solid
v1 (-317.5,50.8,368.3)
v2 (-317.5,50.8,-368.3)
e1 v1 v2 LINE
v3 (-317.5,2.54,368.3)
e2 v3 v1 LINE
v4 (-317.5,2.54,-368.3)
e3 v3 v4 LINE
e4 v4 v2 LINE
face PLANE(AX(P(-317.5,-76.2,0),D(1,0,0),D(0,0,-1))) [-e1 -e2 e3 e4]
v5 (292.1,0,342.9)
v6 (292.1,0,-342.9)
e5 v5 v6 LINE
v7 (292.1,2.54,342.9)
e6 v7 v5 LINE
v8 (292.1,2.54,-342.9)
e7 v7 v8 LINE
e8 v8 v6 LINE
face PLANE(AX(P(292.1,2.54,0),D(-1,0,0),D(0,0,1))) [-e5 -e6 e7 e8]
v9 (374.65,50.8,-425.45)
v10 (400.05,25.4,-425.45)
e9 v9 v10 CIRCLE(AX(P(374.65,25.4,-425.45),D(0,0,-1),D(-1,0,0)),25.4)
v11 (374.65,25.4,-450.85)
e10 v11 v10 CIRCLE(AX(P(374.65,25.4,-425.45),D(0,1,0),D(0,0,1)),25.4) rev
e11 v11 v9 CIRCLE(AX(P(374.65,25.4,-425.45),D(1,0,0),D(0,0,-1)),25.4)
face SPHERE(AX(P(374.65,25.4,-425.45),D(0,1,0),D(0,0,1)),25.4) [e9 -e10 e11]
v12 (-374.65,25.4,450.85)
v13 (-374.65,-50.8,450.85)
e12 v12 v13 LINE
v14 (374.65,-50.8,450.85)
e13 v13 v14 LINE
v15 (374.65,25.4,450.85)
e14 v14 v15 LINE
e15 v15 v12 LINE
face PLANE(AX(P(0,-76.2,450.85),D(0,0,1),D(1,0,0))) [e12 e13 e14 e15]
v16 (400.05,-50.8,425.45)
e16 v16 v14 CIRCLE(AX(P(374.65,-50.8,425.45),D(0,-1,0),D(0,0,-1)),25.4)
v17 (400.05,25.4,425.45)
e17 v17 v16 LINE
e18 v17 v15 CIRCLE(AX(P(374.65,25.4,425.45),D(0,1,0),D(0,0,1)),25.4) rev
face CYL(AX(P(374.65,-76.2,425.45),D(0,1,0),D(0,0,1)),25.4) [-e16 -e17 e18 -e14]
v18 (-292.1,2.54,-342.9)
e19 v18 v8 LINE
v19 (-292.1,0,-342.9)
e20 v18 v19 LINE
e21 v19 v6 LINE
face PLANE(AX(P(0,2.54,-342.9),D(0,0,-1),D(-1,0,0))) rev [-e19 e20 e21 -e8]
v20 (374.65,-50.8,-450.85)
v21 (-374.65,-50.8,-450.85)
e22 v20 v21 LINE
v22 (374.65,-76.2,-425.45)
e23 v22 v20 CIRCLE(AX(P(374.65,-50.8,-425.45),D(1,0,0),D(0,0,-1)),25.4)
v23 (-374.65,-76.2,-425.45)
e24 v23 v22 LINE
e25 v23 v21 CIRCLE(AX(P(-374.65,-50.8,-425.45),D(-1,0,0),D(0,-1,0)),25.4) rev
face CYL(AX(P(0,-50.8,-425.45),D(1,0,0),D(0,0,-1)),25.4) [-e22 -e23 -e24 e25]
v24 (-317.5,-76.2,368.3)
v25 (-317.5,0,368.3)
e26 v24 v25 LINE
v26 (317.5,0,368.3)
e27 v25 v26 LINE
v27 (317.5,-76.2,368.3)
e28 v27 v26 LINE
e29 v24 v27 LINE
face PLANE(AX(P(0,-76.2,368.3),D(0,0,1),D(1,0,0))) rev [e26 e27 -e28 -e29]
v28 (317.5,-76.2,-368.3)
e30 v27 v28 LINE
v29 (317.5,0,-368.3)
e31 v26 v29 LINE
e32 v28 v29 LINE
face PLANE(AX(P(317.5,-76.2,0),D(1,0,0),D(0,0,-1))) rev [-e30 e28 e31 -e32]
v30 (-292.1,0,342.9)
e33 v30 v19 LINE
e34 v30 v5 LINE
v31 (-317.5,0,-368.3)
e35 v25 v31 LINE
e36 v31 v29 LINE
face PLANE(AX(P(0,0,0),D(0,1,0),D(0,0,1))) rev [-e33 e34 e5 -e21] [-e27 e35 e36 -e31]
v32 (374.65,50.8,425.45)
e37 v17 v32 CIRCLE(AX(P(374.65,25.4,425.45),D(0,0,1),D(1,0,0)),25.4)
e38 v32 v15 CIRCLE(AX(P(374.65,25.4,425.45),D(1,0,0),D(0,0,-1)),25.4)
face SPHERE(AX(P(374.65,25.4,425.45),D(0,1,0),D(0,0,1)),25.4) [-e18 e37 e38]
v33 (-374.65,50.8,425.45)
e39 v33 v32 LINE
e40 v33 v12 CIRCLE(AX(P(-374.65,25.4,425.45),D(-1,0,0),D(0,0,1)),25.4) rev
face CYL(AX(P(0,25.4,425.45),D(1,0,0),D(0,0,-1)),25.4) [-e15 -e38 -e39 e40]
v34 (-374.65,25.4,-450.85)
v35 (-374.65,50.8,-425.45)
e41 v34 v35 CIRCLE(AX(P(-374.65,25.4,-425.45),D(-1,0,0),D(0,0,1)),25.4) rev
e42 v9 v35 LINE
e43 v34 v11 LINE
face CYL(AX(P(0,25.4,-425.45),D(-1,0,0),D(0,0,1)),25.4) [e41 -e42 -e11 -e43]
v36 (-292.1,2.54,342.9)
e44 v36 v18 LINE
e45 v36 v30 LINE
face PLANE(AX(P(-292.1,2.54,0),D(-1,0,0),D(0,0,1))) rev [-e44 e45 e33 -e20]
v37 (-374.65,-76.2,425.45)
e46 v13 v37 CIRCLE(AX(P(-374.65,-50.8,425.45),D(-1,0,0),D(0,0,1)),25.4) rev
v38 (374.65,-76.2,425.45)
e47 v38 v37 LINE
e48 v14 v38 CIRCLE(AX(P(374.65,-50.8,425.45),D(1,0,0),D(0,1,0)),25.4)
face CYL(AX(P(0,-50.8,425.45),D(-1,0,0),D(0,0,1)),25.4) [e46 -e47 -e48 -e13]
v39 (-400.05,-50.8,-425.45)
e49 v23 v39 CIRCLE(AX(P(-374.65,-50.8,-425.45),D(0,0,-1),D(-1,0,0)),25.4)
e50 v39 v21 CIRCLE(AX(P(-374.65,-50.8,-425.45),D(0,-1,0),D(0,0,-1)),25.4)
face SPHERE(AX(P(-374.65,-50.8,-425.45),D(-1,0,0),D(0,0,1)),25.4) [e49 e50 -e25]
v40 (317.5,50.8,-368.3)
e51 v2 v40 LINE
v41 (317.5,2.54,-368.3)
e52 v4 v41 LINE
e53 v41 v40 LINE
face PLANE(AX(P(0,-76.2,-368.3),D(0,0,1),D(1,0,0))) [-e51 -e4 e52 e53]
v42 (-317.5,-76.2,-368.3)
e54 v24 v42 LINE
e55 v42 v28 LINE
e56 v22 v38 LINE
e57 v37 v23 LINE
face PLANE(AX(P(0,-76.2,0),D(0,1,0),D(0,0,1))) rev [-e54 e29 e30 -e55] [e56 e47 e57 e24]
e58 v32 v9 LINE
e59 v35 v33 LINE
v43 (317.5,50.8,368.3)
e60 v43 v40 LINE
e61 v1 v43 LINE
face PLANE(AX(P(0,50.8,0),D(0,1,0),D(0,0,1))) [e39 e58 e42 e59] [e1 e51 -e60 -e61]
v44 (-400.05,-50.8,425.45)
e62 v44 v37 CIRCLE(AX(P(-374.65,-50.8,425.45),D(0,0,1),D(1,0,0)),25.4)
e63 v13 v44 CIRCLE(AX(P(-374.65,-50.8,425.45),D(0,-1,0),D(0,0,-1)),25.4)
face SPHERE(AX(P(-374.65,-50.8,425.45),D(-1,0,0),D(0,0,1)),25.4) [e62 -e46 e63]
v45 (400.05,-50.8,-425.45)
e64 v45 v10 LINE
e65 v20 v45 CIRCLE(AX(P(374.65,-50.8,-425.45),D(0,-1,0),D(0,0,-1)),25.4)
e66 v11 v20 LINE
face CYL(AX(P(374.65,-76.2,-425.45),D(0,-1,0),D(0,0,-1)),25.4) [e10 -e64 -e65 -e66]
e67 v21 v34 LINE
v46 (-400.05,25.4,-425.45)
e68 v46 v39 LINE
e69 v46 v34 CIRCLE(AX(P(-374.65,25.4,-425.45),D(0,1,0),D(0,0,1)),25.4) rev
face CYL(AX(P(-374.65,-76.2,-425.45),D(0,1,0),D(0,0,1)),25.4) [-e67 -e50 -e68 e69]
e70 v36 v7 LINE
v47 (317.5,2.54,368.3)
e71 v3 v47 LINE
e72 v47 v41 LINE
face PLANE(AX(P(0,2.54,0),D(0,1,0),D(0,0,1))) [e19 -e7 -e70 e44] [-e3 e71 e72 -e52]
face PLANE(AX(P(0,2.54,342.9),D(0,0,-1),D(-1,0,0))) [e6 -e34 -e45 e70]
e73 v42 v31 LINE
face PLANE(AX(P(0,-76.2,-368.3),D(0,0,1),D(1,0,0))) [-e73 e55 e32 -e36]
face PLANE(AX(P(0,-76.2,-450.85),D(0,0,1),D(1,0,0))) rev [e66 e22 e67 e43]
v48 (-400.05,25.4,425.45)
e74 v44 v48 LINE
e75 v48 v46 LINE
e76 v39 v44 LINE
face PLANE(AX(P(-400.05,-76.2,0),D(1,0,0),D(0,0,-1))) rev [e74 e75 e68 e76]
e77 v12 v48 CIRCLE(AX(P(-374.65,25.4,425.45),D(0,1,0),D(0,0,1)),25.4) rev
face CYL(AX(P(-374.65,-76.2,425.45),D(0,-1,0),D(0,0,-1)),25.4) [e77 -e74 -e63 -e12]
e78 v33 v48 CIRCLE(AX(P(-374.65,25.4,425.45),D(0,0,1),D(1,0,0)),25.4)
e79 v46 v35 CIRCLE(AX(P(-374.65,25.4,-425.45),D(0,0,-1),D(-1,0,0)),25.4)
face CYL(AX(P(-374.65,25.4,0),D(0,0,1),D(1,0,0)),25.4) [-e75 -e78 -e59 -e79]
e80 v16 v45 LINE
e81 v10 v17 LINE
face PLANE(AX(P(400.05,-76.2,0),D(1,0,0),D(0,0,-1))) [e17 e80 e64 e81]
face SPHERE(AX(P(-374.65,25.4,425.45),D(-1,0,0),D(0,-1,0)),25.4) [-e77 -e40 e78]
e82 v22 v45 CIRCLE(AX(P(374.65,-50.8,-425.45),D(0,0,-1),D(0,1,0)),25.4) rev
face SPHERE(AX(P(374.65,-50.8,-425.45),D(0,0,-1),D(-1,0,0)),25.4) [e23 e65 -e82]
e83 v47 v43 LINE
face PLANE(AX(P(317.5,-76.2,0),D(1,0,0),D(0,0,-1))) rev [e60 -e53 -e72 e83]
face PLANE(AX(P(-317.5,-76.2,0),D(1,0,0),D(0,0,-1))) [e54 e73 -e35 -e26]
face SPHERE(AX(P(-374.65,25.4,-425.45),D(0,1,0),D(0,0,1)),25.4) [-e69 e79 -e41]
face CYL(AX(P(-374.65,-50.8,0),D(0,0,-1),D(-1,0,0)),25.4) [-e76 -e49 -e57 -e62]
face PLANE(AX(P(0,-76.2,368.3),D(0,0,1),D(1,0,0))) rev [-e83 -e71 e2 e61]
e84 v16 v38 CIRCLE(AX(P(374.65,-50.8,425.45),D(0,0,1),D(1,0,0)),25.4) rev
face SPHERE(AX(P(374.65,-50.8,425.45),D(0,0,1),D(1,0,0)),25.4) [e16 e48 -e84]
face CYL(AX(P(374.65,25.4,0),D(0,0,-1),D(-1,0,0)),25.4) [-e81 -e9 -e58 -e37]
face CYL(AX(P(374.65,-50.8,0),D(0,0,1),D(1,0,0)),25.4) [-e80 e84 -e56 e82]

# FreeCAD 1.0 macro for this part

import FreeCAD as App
import Part
import Sketcher
Q = App.Units.Quantity


def edges_at(feature, points):
    """Names of the edges that pass closest to the given points."""
    edges = feature.Shape.Edges
    near = lambda p: min(range(len(edges)), key=lambda i: edges[i].distToShape(Part.Vertex(*p))[0])
    return sorted({f"Edge{near(p) + 1}" for p in points})

doc = App.newDocument("Part")
body = doc.addObject("PartDesign::Body", "Body")

sketch1 = body.newObject("Sketcher::SketchObject", "Sketch")
sketch1.AttachmentSupport = (doc.getObject("XZ_Plane"), [""])
sketch1.MapMode = "FlatFace"
sketch1.addGeometry(Part.LineSegment(App.Vector(-400.05, -450.85, 0), App.Vector(-400.05, 450.85, 0)), False)
sketch1.addGeometry(Part.LineSegment(App.Vector(-400.05, 450.85, 0), App.Vector(400.05, 450.85, 0)), False)
sketch1.addGeometry(Part.LineSegment(App.Vector(400.05, 450.85, 0), App.Vector(400.05, -450.85, 0)), False)
sketch1.addGeometry(Part.LineSegment(App.Vector(400.05, -450.85, 0), App.Vector(-400.05, -450.85, 0)), False)
sketch1.addGeometry(Part.LineSegment(App.Vector(317.5, 368.3, 0), App.Vector(-317.5, 368.3, 0)), False)
sketch1.addGeometry(Part.LineSegment(App.Vector(-317.5, 368.3, 0), App.Vector(-317.5, -368.3, 0)), False)
sketch1.addGeometry(Part.LineSegment(App.Vector(-317.5, -368.3, 0), App.Vector(317.5, -368.3, 0)), False)
sketch1.addGeometry(Part.LineSegment(App.Vector(317.5, -368.3, 0), App.Vector(317.5, 368.3, 0)), False)
sketch1.addConstraint(Sketcher.Constraint("Coincident", 0, 2, 1, 1))
sketch1.addConstraint(Sketcher.Constraint("Coincident", 1, 2, 2, 1))
sketch1.addConstraint(Sketcher.Constraint("Coincident", 2, 2, 3, 1))
sketch1.addConstraint(Sketcher.Constraint("Coincident", 3, 2, 0, 1))
sketch1.addConstraint(Sketcher.Constraint("Coincident", 4, 2, 5, 1))
sketch1.addConstraint(Sketcher.Constraint("Coincident", 5, 2, 6, 1))
sketch1.addConstraint(Sketcher.Constraint("Coincident", 6, 2, 7, 1))
sketch1.addConstraint(Sketcher.Constraint("Coincident", 7, 2, 4, 1))
sketch1.addConstraint(Sketcher.Constraint("Vertical", 0))
sketch1.addConstraint(Sketcher.Constraint("Horizontal", 1))
sketch1.addConstraint(Sketcher.Constraint("Vertical", 2))
sketch1.addConstraint(Sketcher.Constraint("Horizontal", 3))
sketch1.addConstraint(Sketcher.Constraint("Horizontal", 4))
sketch1.addConstraint(Sketcher.Constraint("Vertical", 5))
sketch1.addConstraint(Sketcher.Constraint("Horizontal", 6))
sketch1.addConstraint(Sketcher.Constraint("Vertical", 7))
sketch1.addConstraint(Sketcher.Constraint("Symmetric", 0, 2, 2, 2, -1, 1))
sketch1.addConstraint(Sketcher.Constraint("Symmetric", 4, 2, 6, 2, -1, 1))
sketch1.addConstraint(Sketcher.Constraint("DistanceX", 4, 2, 4, 1, Q("25 in")))
sketch1.addConstraint(Sketcher.Constraint("DistanceY", 5, 2, 5, 1, Q("29 in")))
sketch1.addConstraint(Sketcher.Constraint("DistanceX", 1, 1, 1, 2, Q("31.5 in")))
sketch1.addConstraint(Sketcher.Constraint("DistanceY", 0, 1, 0, 2, Q("35.5 in")))
pad1 = body.newObject("PartDesign::Pad", "Pad")
pad1.Profile = sketch1
pad1.Type = "TwoLengths"
pad1.Length = Q("2 in")
pad1.Length2 = Q("3 in")
pad1.Reversed = True

sketch2 = body.newObject("Sketcher::SketchObject", "Sketch001")
sketch2.AttachmentSupport = (doc.getObject("XZ_Plane"), [""])
sketch2.MapMode = "FlatFace"
sketch2.addGeometry(Part.LineSegment(App.Vector(-317.5, -368.3, 0), App.Vector(-317.5, 368.3, 0)), False)
sketch2.addGeometry(Part.LineSegment(App.Vector(-317.5, 368.3, 0), App.Vector(317.5, 368.3, 0)), False)
sketch2.addGeometry(Part.LineSegment(App.Vector(317.5, 368.3, 0), App.Vector(317.5, -368.3, 0)), False)
sketch2.addGeometry(Part.LineSegment(App.Vector(317.5, -368.3, 0), App.Vector(-317.5, -368.3, 0)), False)
sketch2.addGeometry(Part.LineSegment(App.Vector(292.1, 342.9, 0), App.Vector(-292.1, 342.9, 0)), False)
sketch2.addGeometry(Part.LineSegment(App.Vector(-292.1, 342.9, 0), App.Vector(-292.1, -342.9, 0)), False)
sketch2.addGeometry(Part.LineSegment(App.Vector(-292.1, -342.9, 0), App.Vector(292.1, -342.9, 0)), False)
sketch2.addGeometry(Part.LineSegment(App.Vector(292.1, -342.9, 0), App.Vector(292.1, 342.9, 0)), False)
sketch2.addConstraint(Sketcher.Constraint("Coincident", 0, 2, 1, 1))
sketch2.addConstraint(Sketcher.Constraint("Coincident", 1, 2, 2, 1))
sketch2.addConstraint(Sketcher.Constraint("Coincident", 2, 2, 3, 1))
sketch2.addConstraint(Sketcher.Constraint("Coincident", 3, 2, 0, 1))
sketch2.addConstraint(Sketcher.Constraint("Coincident", 4, 2, 5, 1))
sketch2.addConstraint(Sketcher.Constraint("Coincident", 5, 2, 6, 1))
sketch2.addConstraint(Sketcher.Constraint("Coincident", 6, 2, 7, 1))
sketch2.addConstraint(Sketcher.Constraint("Coincident", 7, 2, 4, 1))
sketch2.addConstraint(Sketcher.Constraint("Vertical", 0))
sketch2.addConstraint(Sketcher.Constraint("Horizontal", 1))
sketch2.addConstraint(Sketcher.Constraint("Vertical", 2))
sketch2.addConstraint(Sketcher.Constraint("Horizontal", 3))
sketch2.addConstraint(Sketcher.Constraint("Horizontal", 4))
sketch2.addConstraint(Sketcher.Constraint("Vertical", 5))
sketch2.addConstraint(Sketcher.Constraint("Horizontal", 6))
sketch2.addConstraint(Sketcher.Constraint("Vertical", 7))
sketch2.addConstraint(Sketcher.Constraint("Symmetric", 0, 2, 2, 2, -1, 1))
sketch2.addConstraint(Sketcher.Constraint("Symmetric", 4, 2, 6, 2, -1, 1))
sketch2.addConstraint(Sketcher.Constraint("DistanceX", 1, 1, 1, 2, Q("25 in")))
sketch2.addConstraint(Sketcher.Constraint("DistanceX", 4, 2, 4, 1, Q("23 in")))
sketch2.addConstraint(Sketcher.Constraint("DistanceY", 0, 1, 0, 2, Q("29 in")))
sketch2.addConstraint(Sketcher.Constraint("DistanceY", 5, 2, 5, 1, Q("27 in")))
pad2 = body.newObject("PartDesign::Pad", "Pad001")
pad2.Profile = sketch2
pad2.Length = Q("0.1 in")
pad2.Reversed = True
doc.recompute()

fillet = body.newObject("PartDesign::Fillet", "Fillet")
fillet.Base = (pad2, edges_at(pad2, [
    (0, -76.2, 450.85),
    (-400.05, -12.7, -450.85),
    (400.05, -12.7, -450.85),
    (400.05, -76.2, 0),
    (400.05, -12.7, 450.85),
    (-400.05, -12.7, 450.85),
    (0, -76.2, -450.85),
    (-400.05, 50.8, 0),
    (0, 50.8, -450.85),
    (0, 50.8, 450.85),
    (400.05, 50.8, 0),
    (-400.05, -76.2, 0),
]))
fillet.Radius = Q("1 in")

doc.recompute()
